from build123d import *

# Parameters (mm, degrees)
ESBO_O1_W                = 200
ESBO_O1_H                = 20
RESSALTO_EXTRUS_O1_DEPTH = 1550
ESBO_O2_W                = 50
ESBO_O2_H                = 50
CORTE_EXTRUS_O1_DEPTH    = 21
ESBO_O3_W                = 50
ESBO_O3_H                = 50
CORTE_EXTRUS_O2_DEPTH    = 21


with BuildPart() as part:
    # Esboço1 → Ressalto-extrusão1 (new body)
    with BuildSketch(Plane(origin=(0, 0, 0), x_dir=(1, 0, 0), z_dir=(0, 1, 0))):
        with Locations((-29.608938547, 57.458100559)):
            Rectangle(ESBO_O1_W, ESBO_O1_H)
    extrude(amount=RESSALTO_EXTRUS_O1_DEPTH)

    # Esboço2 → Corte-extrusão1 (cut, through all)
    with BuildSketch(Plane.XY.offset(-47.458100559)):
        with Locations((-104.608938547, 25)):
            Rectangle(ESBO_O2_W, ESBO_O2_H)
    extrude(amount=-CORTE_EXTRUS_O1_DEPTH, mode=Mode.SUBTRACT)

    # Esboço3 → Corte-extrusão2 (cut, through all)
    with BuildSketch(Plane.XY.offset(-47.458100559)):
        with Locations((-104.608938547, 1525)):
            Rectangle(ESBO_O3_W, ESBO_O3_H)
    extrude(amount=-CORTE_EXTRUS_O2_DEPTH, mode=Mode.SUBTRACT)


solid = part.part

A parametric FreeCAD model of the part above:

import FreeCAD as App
import Part
import Sketcher

V = App.Vector
Q = App.Units.Quantity


def add_polygon(sketch, points):
    """Adds a closed chain of lines whose ends are joined by coincident constraints."""
    first, n = sketch.GeometryCount, len(points)
    for a, b in zip(points, points[1:] + points[:1]):
        sketch.addGeometry(Part.LineSegment(App.Vector(*a, 0), App.Vector(*b, 0)), False)
    for i in range(n):
        sketch.addConstraint(Sketcher.Constraint("Coincident", first + i, 2, first + (i + 1) % n, 1))

doc = App.newDocument("Part")
params = doc.addObject("Spreadsheet::Sheet", "Params")
for row, (alias, value) in enumerate([
    ("sketch1_width", "200 mm"),
    ("sketch1_height", "20 mm"),
    ("pad1_length", "1550 mm"),
    ("sketch2_width", "50 mm"),
    ("sketch3_width", "50 mm"),
], start=1):
    params.set(f"A{row}", alias)
    params.set(f"B{row}", "=" + value)
    params.setAlias(f"B{row}", alias)

body = doc.addObject("PartDesign::Body", "Body")

sketch1 = doc.addObject("Sketcher::SketchObject", "Sketch")
body.addObject(sketch1)
sketch1.AttachmentSupport = (doc.XZ_Plane, [""])
sketch1.MapMode = "FlatFace"
add_polygon(sketch1, [(-130, -67), (-130, -47), (70, -47), (70, -67)])
sketch1.addConstraint([
    Sketcher.Constraint("Vertical", 0),
    Sketcher.Constraint("Horizontal", 1),
    Sketcher.Constraint("Vertical", 2),
    Sketcher.Constraint("Horizontal", 3),
    Sketcher.Constraint("DistanceX", 1, 1, 1, 2, Q("200 mm")),
    Sketcher.Constraint("DistanceY", 0, 1, 0, 2, Q("20 mm")),
    Sketcher.Constraint("DistanceY", 0, 2, -1, 1, Q("47.458101 mm")),
    Sketcher.Constraint("DistanceX", 0, 2, -1, 1, Q("129.608939 mm")),
])
sketch1.setExpression("Constraints[8]", "Params.sketch1_width")
sketch1.setExpression("Constraints[9]", "Params.sketch1_height")
pad1 = doc.addObject("PartDesign::Pad", "Pad")
body.addObject(pad1)
pad1.Profile = sketch1
pad1.setExpression("Length", "Params.pad1_length")
pad1.Reversed = True

sketch2 = doc.addObject("Sketcher::SketchObject", "Sketch001")
body.addObject(sketch2)
sketch2.AttachmentSupport = (doc.XY_Plane, [""])
sketch2.MapMode = "FlatFace"
sketch2.AttachmentOffset = App.Placement(V(0, 0, -47.458101), App.Rotation())
add_polygon(sketch2, [(-130, 50), (-130, 0), (-80, 0), (-80, 50)])
sketch2.addConstraint([
    Sketcher.Constraint("Vertical", 0),
    Sketcher.Constraint("Horizontal", 1),
    Sketcher.Constraint("Vertical", 2),
    Sketcher.Constraint("Horizontal", 3),
    Sketcher.Constraint("PointOnObject", 0, 2, -1),
    Sketcher.Constraint("Equal", 3, 0),
    Sketcher.Constraint("DistanceX", 1, 1, 1, 2, Q("50 mm")),
    Sketcher.Constraint("DistanceX", 0, 2, -1, 1, Q("129.608939 mm")),
])
sketch2.setExpression("Constraints[10]", "Params.sketch2_width")
pocket1 = doc.addObject("PartDesign::Pocket", "Pocket")
body.addObject(pocket1)
pocket1.Profile = sketch2
pocket1.Type = "ThroughAll"

sketch3 = doc.addObject("Sketcher::SketchObject", "Sketch002")
body.addObject(sketch3)
sketch3.AttachmentSupport = (doc.XY_Plane, [""])
sketch3.MapMode = "FlatFace"
sketch3.AttachmentOffset = App.Placement(V(0, 0, -47.458101), App.Rotation())
add_polygon(sketch3, [(-130, 1550), (-130, 1500), (-80, 1500), (-80, 1550)])
sketch3.addConstraint([
    Sketcher.Constraint("Vertical", 0),
    Sketcher.Constraint("Horizontal", 1),
    Sketcher.Constraint("Vertical", 2),
    Sketcher.Constraint("Horizontal", 3),
    Sketcher.Constraint("Equal", 3, 0),
    Sketcher.Constraint("DistanceX", 1, 1, 1, 2, Q("50 mm")),
    Sketcher.Constraint("DistanceY", -1, 1, 0, 2, Q("1500 mm")),
    Sketcher.Constraint("DistanceX", 0, 2, -1, 1, Q("129.608939 mm")),
])
sketch3.setExpression("Constraints[9]", "Params.sketch3_width")
pocket2 = doc.addObject("PartDesign::Pocket", "Pocket001")
body.addObject(pocket2)
pocket2.Profile = sketch3
pocket2.Type = "ThroughAll"

doc.recompute()
